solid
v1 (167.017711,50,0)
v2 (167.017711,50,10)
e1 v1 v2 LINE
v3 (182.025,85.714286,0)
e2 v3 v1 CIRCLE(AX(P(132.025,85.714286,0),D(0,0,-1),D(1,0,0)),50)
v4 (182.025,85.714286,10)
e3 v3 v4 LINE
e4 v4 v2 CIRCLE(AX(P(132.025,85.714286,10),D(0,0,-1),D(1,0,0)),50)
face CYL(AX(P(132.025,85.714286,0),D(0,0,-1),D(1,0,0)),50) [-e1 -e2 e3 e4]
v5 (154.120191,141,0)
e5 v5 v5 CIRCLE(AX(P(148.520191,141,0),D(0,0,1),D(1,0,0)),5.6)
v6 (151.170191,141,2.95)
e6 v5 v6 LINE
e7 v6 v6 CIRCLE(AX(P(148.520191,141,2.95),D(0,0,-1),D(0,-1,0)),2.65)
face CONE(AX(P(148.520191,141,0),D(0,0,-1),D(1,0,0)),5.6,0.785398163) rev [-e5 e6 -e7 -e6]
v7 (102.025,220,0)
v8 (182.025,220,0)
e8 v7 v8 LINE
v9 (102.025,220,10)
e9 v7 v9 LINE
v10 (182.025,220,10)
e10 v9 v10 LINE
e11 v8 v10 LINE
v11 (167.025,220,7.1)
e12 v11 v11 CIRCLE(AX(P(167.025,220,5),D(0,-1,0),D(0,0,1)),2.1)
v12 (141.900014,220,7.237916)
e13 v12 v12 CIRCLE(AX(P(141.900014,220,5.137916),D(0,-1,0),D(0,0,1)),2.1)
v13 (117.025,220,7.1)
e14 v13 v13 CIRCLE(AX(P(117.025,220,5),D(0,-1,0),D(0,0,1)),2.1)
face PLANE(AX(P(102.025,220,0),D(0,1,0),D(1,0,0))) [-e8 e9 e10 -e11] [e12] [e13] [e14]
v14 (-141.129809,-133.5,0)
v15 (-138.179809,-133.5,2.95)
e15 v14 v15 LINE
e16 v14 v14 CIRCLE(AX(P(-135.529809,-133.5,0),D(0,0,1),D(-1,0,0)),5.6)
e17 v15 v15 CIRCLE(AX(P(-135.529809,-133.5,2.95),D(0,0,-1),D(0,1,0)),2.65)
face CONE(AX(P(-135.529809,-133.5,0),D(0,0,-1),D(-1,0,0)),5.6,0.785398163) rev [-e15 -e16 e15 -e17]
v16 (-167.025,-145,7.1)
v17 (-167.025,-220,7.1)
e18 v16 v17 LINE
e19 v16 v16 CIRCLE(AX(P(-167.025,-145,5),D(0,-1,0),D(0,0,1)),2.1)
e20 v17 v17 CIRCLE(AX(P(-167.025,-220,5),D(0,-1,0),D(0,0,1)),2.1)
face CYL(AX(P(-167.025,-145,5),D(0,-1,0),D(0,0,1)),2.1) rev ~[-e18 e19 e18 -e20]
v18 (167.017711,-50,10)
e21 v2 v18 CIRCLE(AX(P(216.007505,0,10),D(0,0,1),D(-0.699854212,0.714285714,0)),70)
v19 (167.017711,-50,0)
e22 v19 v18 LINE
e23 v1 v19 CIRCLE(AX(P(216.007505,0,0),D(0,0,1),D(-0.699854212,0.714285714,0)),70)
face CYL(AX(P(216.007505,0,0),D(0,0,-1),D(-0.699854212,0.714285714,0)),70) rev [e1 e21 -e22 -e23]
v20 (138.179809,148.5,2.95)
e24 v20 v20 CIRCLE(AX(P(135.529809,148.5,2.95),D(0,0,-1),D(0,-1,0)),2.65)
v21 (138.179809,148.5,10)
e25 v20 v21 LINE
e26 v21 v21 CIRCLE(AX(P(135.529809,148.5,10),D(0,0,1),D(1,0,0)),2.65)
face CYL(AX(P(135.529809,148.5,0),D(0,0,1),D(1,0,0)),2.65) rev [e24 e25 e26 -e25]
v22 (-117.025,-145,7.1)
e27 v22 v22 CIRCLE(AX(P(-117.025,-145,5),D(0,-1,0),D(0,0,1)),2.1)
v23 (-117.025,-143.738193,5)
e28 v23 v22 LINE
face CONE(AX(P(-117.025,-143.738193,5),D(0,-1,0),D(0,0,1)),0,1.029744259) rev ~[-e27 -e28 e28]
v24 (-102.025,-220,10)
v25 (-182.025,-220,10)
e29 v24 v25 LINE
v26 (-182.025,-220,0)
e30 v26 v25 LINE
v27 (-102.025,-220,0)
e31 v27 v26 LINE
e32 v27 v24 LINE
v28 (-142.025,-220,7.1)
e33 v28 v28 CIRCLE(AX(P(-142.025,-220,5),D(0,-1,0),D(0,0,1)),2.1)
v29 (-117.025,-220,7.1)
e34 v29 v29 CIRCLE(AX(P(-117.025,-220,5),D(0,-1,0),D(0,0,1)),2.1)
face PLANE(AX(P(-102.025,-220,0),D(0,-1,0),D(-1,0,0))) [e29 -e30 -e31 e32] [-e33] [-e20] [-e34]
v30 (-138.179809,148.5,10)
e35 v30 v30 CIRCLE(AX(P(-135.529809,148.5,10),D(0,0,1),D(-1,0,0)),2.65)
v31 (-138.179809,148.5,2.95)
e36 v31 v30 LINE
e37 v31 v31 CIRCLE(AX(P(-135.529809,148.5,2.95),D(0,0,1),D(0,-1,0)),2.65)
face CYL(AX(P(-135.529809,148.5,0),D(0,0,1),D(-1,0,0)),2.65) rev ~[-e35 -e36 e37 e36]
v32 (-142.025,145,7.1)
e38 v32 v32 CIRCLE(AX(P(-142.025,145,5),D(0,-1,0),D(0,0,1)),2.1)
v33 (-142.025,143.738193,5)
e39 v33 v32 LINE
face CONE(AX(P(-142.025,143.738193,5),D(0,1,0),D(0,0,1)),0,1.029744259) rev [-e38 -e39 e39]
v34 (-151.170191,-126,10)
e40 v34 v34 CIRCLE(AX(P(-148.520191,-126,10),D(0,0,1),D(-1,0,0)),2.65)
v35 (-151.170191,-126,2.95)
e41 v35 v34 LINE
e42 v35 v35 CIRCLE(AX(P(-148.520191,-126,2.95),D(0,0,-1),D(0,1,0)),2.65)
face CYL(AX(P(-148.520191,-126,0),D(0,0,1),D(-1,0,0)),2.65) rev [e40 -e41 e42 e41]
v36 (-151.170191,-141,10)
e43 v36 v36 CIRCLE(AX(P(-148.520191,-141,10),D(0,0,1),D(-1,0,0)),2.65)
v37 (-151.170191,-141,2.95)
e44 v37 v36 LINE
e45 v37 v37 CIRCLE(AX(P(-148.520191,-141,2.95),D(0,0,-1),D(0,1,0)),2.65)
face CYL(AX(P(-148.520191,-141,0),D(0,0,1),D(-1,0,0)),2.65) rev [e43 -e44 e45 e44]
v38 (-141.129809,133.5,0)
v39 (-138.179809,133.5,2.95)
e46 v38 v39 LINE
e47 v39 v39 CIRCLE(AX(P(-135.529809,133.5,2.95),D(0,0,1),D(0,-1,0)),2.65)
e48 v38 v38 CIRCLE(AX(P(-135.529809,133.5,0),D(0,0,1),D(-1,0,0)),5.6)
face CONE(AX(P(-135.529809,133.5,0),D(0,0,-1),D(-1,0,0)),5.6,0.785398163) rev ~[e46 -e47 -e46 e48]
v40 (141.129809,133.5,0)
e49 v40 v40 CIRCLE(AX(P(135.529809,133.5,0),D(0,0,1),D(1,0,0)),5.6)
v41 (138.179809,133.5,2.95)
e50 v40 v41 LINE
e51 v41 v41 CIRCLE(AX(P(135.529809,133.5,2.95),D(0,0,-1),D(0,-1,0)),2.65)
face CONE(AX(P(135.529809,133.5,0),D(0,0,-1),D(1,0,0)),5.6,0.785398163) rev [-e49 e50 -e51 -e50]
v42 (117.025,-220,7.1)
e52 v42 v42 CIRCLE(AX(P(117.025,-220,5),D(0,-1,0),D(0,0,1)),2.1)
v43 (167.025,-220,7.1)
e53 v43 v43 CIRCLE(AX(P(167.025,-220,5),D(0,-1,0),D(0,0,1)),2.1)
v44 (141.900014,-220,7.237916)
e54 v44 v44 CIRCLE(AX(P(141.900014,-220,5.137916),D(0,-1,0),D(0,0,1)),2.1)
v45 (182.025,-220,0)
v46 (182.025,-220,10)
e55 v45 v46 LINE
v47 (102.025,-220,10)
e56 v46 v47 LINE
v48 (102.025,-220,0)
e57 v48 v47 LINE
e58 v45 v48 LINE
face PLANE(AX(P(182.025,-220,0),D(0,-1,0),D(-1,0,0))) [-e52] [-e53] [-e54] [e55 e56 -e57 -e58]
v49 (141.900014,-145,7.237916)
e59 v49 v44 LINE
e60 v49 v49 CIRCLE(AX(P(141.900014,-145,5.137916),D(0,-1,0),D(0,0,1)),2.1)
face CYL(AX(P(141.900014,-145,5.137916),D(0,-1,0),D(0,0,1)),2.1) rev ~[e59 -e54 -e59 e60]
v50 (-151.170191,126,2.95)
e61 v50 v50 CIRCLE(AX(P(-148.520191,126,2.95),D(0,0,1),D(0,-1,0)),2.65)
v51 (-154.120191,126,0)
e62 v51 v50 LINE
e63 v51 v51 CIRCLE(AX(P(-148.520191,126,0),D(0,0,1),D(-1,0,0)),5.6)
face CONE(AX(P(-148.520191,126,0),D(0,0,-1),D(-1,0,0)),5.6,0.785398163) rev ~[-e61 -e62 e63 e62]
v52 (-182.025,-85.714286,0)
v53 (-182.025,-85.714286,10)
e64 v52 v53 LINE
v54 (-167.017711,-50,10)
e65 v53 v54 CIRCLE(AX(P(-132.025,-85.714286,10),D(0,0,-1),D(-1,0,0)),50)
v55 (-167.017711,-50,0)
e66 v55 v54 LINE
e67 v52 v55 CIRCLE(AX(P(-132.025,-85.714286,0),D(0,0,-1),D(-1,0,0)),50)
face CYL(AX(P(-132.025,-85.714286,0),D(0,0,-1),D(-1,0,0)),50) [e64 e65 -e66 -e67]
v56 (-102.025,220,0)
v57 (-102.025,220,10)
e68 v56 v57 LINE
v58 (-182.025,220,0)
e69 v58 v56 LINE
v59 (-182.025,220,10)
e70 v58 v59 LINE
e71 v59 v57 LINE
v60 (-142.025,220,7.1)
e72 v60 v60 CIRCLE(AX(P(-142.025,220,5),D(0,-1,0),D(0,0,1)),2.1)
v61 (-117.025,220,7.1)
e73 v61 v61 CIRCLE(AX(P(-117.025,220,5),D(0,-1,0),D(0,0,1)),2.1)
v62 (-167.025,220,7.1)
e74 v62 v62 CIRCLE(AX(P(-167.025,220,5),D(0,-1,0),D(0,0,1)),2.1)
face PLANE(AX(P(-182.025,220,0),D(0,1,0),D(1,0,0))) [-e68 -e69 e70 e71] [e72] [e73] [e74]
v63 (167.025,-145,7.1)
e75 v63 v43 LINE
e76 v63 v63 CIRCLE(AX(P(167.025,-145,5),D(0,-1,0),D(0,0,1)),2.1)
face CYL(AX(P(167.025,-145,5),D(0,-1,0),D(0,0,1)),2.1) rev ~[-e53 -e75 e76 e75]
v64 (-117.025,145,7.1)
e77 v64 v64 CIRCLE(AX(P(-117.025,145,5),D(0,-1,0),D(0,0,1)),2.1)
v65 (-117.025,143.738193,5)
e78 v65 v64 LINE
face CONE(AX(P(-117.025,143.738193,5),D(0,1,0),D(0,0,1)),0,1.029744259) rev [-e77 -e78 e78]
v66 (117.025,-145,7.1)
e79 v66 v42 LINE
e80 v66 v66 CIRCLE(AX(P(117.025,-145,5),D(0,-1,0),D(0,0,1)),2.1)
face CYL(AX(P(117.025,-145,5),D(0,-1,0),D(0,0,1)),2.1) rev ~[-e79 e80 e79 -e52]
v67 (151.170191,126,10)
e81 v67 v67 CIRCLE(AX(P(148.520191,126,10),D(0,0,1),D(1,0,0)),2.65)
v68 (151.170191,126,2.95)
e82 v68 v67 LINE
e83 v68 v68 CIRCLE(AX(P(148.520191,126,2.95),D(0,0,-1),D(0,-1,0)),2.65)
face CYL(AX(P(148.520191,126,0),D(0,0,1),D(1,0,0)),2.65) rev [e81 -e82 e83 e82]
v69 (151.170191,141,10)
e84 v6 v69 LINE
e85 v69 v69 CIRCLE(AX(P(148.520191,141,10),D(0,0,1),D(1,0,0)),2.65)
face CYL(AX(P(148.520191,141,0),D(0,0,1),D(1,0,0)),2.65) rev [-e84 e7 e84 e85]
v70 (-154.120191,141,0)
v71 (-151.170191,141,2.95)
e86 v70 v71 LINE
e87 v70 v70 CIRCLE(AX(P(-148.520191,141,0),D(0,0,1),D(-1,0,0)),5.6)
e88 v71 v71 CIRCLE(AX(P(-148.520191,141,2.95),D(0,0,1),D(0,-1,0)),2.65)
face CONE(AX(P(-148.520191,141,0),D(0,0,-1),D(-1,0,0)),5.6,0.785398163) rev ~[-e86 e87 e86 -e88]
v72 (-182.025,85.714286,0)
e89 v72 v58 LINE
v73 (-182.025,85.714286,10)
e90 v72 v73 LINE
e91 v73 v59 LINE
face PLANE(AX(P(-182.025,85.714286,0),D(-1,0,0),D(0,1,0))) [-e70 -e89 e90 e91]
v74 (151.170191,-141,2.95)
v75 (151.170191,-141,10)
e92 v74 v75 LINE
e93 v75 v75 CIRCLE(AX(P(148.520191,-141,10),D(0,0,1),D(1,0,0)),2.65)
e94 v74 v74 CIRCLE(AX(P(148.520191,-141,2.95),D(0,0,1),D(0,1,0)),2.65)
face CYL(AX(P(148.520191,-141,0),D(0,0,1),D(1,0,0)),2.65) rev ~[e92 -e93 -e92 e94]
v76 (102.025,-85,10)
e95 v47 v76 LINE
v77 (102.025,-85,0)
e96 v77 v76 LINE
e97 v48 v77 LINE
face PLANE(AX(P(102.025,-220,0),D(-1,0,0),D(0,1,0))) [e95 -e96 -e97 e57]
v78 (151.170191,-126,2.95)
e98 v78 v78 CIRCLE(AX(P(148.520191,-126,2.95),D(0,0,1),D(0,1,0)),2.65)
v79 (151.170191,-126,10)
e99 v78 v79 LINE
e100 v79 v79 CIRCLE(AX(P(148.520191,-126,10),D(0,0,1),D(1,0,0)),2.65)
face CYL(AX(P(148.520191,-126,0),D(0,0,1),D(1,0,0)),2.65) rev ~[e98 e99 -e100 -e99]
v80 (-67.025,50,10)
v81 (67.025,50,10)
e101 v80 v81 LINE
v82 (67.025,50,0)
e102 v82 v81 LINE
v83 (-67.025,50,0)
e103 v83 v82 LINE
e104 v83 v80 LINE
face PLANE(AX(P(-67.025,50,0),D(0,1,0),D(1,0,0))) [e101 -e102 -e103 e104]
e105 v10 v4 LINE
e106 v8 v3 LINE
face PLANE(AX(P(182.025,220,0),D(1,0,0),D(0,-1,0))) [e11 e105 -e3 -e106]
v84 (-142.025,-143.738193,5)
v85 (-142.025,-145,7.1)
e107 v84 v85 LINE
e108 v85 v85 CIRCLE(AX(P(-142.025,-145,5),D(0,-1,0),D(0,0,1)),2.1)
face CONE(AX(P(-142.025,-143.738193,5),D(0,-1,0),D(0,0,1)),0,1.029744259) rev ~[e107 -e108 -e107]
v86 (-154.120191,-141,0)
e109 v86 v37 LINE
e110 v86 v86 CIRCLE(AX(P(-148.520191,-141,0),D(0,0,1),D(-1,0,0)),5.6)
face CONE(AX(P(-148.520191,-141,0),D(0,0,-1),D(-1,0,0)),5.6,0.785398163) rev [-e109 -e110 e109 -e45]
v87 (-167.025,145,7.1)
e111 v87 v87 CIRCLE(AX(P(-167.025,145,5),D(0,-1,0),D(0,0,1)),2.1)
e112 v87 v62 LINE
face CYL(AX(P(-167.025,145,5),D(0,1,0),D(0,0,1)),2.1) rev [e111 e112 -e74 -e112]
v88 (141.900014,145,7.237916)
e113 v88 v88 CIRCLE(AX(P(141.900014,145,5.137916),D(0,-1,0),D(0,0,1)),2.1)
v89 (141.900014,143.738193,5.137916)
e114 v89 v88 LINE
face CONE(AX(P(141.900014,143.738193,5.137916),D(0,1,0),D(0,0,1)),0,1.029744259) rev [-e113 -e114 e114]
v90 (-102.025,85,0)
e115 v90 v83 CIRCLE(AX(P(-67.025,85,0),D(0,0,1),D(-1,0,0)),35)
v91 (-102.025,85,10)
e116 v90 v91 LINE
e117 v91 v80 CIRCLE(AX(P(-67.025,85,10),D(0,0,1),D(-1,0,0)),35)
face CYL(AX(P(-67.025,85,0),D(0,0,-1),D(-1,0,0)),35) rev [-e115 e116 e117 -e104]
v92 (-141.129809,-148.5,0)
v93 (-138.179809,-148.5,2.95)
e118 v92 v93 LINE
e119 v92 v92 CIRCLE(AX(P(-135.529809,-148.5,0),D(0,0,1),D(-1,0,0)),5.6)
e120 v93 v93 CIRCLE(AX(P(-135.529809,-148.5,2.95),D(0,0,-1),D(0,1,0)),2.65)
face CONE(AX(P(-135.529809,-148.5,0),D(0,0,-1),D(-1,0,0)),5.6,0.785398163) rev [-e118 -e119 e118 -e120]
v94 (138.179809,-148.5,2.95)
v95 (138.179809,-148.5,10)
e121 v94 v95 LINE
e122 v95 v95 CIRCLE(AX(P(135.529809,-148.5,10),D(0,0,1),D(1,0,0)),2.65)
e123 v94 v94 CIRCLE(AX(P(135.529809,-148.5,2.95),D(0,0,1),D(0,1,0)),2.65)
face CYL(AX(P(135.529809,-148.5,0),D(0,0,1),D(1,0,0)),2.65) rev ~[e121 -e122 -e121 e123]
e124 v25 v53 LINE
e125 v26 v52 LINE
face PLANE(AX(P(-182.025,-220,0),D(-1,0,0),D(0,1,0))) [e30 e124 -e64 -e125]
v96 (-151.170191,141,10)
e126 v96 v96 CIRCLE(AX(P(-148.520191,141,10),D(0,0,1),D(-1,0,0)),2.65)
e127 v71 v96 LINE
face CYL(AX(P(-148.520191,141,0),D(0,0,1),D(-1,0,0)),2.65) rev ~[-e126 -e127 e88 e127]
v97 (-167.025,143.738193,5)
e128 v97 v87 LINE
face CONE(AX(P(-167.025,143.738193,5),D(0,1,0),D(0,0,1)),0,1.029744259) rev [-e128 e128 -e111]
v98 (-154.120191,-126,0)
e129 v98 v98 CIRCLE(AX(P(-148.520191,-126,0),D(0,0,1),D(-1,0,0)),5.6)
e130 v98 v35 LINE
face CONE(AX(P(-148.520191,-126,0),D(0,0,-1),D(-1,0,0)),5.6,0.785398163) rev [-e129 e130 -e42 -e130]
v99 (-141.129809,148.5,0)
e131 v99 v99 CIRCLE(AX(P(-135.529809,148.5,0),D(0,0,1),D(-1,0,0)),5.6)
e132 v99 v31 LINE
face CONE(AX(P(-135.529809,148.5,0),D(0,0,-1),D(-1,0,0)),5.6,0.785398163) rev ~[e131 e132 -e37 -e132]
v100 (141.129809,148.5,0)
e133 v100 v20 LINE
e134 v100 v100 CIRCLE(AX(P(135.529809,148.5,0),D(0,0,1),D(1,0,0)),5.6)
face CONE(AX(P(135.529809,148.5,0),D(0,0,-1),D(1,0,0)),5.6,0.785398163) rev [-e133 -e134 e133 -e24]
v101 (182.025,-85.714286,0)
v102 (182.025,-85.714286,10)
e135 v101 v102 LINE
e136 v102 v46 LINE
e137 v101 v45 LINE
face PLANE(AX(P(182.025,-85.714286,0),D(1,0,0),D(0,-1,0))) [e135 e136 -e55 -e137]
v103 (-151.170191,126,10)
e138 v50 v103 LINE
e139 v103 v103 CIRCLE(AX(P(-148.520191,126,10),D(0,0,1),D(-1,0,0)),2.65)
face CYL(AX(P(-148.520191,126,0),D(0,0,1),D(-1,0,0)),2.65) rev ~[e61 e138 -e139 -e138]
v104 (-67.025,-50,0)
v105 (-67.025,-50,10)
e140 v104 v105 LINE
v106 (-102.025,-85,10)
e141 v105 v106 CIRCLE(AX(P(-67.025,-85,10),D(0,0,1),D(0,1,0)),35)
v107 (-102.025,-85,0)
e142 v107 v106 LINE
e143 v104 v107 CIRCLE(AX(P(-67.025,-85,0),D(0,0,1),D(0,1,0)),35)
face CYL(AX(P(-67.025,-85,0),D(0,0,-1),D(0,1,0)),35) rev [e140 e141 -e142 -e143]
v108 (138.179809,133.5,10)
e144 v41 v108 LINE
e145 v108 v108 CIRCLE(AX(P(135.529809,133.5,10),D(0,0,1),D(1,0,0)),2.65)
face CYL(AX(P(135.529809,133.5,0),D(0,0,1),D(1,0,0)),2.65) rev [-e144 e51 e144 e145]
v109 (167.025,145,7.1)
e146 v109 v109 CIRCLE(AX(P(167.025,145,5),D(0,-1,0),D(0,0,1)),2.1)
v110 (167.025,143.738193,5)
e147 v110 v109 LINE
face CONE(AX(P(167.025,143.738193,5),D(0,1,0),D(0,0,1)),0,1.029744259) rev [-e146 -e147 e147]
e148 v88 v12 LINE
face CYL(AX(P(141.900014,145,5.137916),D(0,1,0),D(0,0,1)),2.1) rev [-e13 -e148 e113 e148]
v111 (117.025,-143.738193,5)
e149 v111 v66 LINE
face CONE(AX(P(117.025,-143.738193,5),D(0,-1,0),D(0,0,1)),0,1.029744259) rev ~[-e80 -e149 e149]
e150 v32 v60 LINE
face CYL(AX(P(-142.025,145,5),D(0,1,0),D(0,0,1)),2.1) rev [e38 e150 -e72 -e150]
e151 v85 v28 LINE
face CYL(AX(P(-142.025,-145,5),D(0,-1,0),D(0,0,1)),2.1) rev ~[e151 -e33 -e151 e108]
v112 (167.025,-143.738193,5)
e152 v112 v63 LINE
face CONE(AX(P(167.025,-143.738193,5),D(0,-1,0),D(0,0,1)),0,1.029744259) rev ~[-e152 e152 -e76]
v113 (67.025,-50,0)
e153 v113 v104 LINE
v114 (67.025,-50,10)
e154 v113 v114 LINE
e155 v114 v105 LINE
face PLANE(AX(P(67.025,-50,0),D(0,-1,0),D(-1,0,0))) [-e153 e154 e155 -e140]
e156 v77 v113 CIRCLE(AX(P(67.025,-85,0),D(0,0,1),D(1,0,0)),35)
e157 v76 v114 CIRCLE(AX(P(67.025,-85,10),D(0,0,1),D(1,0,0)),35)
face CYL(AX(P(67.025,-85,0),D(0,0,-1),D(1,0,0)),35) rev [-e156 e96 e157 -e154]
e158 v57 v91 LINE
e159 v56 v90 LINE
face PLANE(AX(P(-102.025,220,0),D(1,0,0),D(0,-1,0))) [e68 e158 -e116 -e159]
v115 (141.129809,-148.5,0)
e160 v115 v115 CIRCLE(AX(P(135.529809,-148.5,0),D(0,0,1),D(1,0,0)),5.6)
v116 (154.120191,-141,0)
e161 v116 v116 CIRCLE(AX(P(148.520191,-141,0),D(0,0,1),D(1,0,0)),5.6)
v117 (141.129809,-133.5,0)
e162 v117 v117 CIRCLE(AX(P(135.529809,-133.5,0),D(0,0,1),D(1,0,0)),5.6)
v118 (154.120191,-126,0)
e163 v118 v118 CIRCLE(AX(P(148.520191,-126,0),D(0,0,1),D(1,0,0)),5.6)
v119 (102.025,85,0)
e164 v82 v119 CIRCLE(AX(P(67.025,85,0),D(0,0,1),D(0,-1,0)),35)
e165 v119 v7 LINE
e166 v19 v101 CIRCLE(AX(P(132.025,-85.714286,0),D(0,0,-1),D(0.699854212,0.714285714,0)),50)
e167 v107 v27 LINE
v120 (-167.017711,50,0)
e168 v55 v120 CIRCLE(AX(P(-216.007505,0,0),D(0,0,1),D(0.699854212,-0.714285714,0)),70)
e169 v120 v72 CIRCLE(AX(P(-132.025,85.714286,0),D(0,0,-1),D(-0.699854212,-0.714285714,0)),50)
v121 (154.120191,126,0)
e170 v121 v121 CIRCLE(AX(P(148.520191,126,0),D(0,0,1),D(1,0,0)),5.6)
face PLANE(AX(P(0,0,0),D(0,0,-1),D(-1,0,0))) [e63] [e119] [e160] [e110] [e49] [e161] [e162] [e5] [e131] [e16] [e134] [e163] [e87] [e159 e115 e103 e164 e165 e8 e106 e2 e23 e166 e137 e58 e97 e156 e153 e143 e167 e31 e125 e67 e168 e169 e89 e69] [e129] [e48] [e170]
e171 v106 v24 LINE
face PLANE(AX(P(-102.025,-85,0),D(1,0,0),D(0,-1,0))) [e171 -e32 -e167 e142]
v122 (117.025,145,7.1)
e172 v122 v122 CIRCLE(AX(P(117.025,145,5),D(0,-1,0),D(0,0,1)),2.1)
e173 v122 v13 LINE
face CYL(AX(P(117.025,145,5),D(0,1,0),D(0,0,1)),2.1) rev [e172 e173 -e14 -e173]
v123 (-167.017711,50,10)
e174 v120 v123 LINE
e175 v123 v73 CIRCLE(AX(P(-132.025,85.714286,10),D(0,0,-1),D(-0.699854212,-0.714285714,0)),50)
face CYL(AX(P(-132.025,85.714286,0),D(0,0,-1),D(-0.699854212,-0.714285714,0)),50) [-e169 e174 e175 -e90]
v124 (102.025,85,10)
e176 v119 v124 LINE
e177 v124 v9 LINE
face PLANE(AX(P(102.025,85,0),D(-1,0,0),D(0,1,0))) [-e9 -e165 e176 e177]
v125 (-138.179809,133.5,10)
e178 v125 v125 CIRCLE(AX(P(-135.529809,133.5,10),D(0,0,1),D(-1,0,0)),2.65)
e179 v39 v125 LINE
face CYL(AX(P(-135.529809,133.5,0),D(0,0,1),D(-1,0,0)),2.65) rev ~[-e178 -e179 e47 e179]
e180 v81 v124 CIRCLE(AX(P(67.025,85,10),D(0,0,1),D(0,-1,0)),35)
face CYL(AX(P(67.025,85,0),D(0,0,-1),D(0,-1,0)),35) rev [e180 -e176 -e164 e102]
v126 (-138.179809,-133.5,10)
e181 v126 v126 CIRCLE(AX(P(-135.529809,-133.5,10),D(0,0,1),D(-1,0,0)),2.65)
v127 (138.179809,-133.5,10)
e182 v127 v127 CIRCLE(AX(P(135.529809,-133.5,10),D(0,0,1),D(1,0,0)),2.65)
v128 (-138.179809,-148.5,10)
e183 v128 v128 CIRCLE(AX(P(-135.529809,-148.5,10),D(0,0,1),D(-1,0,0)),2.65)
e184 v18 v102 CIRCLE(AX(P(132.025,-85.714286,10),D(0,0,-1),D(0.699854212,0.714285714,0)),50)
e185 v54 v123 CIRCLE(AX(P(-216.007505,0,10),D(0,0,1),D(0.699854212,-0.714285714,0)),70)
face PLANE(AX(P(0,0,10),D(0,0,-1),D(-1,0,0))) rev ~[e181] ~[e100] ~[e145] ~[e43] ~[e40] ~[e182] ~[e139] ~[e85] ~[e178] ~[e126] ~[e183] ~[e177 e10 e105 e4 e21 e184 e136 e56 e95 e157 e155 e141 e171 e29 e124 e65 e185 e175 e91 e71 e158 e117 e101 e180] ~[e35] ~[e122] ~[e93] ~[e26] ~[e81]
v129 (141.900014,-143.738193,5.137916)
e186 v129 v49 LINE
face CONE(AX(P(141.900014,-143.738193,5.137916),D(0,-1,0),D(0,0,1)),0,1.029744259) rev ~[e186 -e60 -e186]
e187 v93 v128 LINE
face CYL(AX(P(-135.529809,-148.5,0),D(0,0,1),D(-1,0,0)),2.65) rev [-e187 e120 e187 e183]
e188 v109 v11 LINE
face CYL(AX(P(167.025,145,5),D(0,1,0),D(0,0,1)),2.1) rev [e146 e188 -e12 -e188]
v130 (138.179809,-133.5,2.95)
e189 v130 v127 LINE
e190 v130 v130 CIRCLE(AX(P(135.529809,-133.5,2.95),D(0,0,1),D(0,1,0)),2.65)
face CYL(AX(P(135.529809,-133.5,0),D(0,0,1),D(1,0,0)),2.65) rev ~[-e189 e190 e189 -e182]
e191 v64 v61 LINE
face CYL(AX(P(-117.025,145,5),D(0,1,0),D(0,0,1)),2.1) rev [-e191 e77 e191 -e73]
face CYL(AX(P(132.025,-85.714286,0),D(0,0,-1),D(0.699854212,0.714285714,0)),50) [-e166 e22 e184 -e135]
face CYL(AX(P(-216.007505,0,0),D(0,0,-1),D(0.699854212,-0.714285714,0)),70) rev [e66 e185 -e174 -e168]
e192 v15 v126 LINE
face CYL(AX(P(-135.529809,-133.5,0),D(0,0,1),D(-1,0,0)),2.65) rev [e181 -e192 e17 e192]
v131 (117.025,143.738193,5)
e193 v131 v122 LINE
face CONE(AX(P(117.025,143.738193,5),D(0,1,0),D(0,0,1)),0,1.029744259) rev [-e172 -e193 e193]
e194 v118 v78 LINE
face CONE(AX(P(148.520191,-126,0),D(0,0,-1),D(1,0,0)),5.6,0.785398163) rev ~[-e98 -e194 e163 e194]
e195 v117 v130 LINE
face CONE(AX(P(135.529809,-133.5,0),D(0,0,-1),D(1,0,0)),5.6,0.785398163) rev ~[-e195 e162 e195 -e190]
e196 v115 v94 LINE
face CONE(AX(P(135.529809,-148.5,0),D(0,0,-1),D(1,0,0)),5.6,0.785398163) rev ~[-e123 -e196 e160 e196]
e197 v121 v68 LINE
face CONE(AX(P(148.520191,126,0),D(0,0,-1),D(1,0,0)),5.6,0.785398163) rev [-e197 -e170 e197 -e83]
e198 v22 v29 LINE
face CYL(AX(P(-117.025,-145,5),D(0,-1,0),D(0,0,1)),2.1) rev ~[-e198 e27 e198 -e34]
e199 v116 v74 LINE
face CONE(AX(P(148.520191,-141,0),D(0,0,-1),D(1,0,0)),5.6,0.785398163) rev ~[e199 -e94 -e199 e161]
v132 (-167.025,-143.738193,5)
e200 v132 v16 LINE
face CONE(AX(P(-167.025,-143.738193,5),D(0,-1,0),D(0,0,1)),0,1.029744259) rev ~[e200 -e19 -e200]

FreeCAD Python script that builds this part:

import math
import FreeCAD as App
import Part
import Sketcher
from FreeCAD import Vector
Q = App.Units.Quantity

doc = App.newDocument("Part")
body = doc.addObject("PartDesign::Body", "Body")

sketch1 = body.newObject("Sketcher::SketchObject", "Sketch")
sketch1.AttachmentSupport = (doc.getObject("XY_Plane"), [""])
sketch1.MapMode = "FlatFace"
sketch1.addGeometry([
    Part.LineSegment(Vector(67, 50, 0), Vector(-67, 50, 0)),
    Part.ArcOfCircle(Part.Circle(Vector(-67, 85, 0), Vector(0, 0, 1), 35), math.radians(180), math.radians(270)),
    Part.LineSegment(Vector(-102, 85, 0), Vector(-102, 220, 0)),
    Part.LineSegment(Vector(-102, 220, 0), Vector(-182, 220, 0)),
    Part.LineSegment(Vector(-182, 220, 0), Vector(-182, 86, 0)),
    Part.ArcOfCircle(Part.Circle(Vector(-132, 86, 0), Vector(0, 0, 1), 50), math.radians(-180), math.radians(-134)),
    Part.ArcOfCircle(Part.Circle(Vector(-216, 0, 0), Vector(0, 0, 1), 70), math.radians(-46), math.radians(46)),
    Part.ArcOfCircle(Part.Circle(Vector(-132, -86, 0), Vector(0, 0, 1), 50), math.radians(134), math.radians(180)),
    Part.LineSegment(Vector(-182, -86, 0), Vector(-182, -220, 0)),
    Part.LineSegment(Vector(-182, -220, 0), Vector(-102, -220, 0)),
    Part.LineSegment(Vector(-102, -220, 0), Vector(-102, -85, 0)),
    Part.ArcOfCircle(Part.Circle(Vector(-67, -85, 0), Vector(0, 0, 1), 35), math.radians(90), math.radians(180)),
    Part.LineSegment(Vector(-67, -50, 0), Vector(67, -50, 0)),
    Part.ArcOfCircle(Part.Circle(Vector(67, -85, 0), Vector(0, 0, 1), 35), math.radians(0), math.radians(90)),
    Part.LineSegment(Vector(102, -85, 0), Vector(102, -220, 0)),
    Part.LineSegment(Vector(102, -220, 0), Vector(182, -220, 0)),
    Part.LineSegment(Vector(182, -220, 0), Vector(182, -86, 0)),
    Part.ArcOfCircle(Part.Circle(Vector(132, -86, 0), Vector(0, 0, 1), 50), math.radians(0), math.radians(46)),
    Part.ArcOfCircle(Part.Circle(Vector(216, 0, 0), Vector(0, 0, 1), 70), math.radians(134), math.radians(226)),
    Part.ArcOfCircle(Part.Circle(Vector(132, 86, 0), Vector(0, 0, 1), 50), math.radians(-46), math.radians(0)),
    Part.LineSegment(Vector(182, 86, 0), Vector(182, 220, 0)),
    Part.LineSegment(Vector(182, 220, 0), Vector(102, 220, 0)),
    Part.LineSegment(Vector(102, 220, 0), Vector(102, 85, 0)),
    Part.ArcOfCircle(Part.Circle(Vector(67, 85, 0), Vector(0, 0, 1), 35), math.radians(-90), math.radians(0)),
], False)
sketch1.addConstraint([
    Sketcher.Constraint("Tangent", 0, 2, 1, 2),
    Sketcher.Constraint("Tangent", 1, 1, 2, 1),
    Sketcher.Constraint("Coincident", 2, 2, 3, 1),
    Sketcher.Constraint("Coincident", 3, 2, 4, 1),
    Sketcher.Constraint("Tangent", 4, 2, 5, 1),
    Sketcher.Constraint("Tangent", 5, 2, 6, 2),
    Sketcher.Constraint("Tangent", 6, 1, 7, 1),
    Sketcher.Constraint("Tangent", 7, 2, 8, 1),
    Sketcher.Constraint("Coincident", 8, 2, 9, 1),
    Sketcher.Constraint("Coincident", 9, 2, 10, 1),
    Sketcher.Constraint("Tangent", 10, 2, 11, 2),
    Sketcher.Constraint("Tangent", 11, 1, 12, 1),
    Sketcher.Constraint("Tangent", 12, 2, 13, 2),
    Sketcher.Constraint("Tangent", 13, 1, 14, 1),
    Sketcher.Constraint("Coincident", 14, 2, 15, 1),
    Sketcher.Constraint("Coincident", 15, 2, 16, 1),
    Sketcher.Constraint("Tangent", 16, 2, 17, 1),
    Sketcher.Constraint("Tangent", 17, 2, 18, 2),
    Sketcher.Constraint("Tangent", 18, 1, 19, 1),
    Sketcher.Constraint("Tangent", 19, 2, 20, 1),
    Sketcher.Constraint("Coincident", 20, 2, 21, 1),
    Sketcher.Constraint("Coincident", 21, 2, 22, 1),
    Sketcher.Constraint("Tangent", 22, 2, 23, 2),
    Sketcher.Constraint("Tangent", 23, 1, 0, 1),
    Sketcher.Constraint("Horizontal", 0),
    Sketcher.Constraint("Vertical", 2),
    Sketcher.Constraint("Horizontal", 3),
    Sketcher.Constraint("Vertical", 4),
    Sketcher.Constraint("Vertical", 8),
    Sketcher.Constraint("Horizontal", 9),
    Sketcher.Constraint("Vertical", 10),
    Sketcher.Constraint("Horizontal", 12),
    Sketcher.Constraint("Vertical", 14),
    Sketcher.Constraint("Horizontal", 15),
    Sketcher.Constraint("Vertical", 16),
    Sketcher.Constraint("Vertical", 20),
    Sketcher.Constraint("Horizontal", 21),
    Sketcher.Constraint("Vertical", 22),
    Sketcher.Constraint("Equal", 5, 7),
    Sketcher.Constraint("Equal", 1, 11),
    Sketcher.Constraint("Equal", 11, 13),
    Sketcher.Constraint("Equal", 7, 17),
    Sketcher.Constraint("Equal", 6, 18),
    Sketcher.Constraint("Equal", 17, 19),
    Sketcher.Constraint("Equal", 13, 23),
    Sketcher.Constraint("Symmetric", 1, 3, 13, 3, -1, 1),
    Sketcher.Constraint("Symmetric", 5, 3, 17, 3, -1, 1),
    Sketcher.Constraint("Symmetric", 7, 3, 19, 3, -1, 1),
    Sketcher.Constraint("Symmetric", 9, 2, 21, 2, -1, 1),
    Sketcher.Constraint("Symmetric", 7, 3, 17, 3, -2),
    Sketcher.Constraint("Symmetric", 9, 2, 14, 2, -2),
    Sketcher.Constraint("Horizontal", 0, 2, 5, 2),
    Sketcher.Constraint("Horizontal", 3, 2, 20, 2),
    Sketcher.Constraint("Radius", 1, Q("35 mm")),
    Sketcher.Constraint("Radius", 5, Q("50 mm")),
    Sketcher.Constraint("Radius", 6, Q("70 mm")),
    Sketcher.Constraint("DistanceX", 3, 2, 3, 1, Q("80 mm")),
    Sketcher.Constraint("DistanceY", 2, 1, 2, 2, Q("135 mm")),
    Sketcher.Constraint("DistanceY", -1, 1, 1, 3, Q("85 mm")),
    Sketcher.Constraint("DistanceX", 0, 2, 0, 1, Q("134.05 mm")),
])
pad1 = body.newObject("PartDesign::Pad", "Pad")
pad1.Profile = sketch1
pad1.Length = 10

sketch2 = body.newObject("Sketcher::SketchObject", "Sketch001")
sketch2.AttachmentSupport = (doc.getObject("YZ_Plane"), [""])
sketch2.MapMode = "FlatFace"
sketch2.AttachmentOffset = App.Placement(Vector(0, 0, -167.025), App.Rotation())
sketch2.addGeometry([
    Part.LineSegment(Vector(143.7, 5, 0), Vector(220, 5, 0)),
    Part.LineSegment(Vector(220, 5, 0), Vector(220, 7.1, 0)),
    Part.LineSegment(Vector(220, 7.1, 0), Vector(145, 7.1, 0)),
    Part.LineSegment(Vector(145, 7.1, 0), Vector(143.7, 5, 0)),
], False)
sketch2.addGeometry(Part.LineSegment(Vector(220, 5, 0), Vector(143.7, 5, 0)), True)
sketch2.addConstraint([
    Sketcher.Constraint("Coincident", 0, 2, 1, 1),
    Sketcher.Constraint("Coincident", 1, 2, 2, 1),
    Sketcher.Constraint("Coincident", 2, 2, 3, 1),
    Sketcher.Constraint("Coincident", 3, 2, 0, 1),
    Sketcher.Constraint("Horizontal", 0),
    Sketcher.Constraint("Vertical", 1),
    Sketcher.Constraint("Horizontal", 2),
    Sketcher.Constraint("Horizontal", 4),
    Sketcher.Constraint("Coincident", 4, 1, 0, 2),
    Sketcher.Constraint("Equal", 0, 4),
    Sketcher.Constraint("DistanceX", 2, 2, 2, 1, Q("75 mm")),
    Sketcher.Constraint("Angle", 3, Q("-121 deg")),
    Sketcher.Constraint("DistanceY", 1, 1, 1, 2, Q("2.1 mm")),
    Sketcher.Constraint("DistanceX", -1, 1, 0, 2, Q("220 mm")),
    Sketcher.Constraint("DistanceY", -1, 1, 0, 2, Q("5 mm")),
])
groove = body.newObject("PartDesign::Groove", "Groove")
groove.Profile = sketch2
groove.ReferenceAxis = (sketch2, ["Axis0"])
groove.Angle = 360
doc.recompute()

linearpattern = body.newObject("PartDesign::LinearPattern", "LinearPattern")
linearpattern.Originals = [groove]
linearpattern.Direction = (doc.getObject("X_Axis"), [""])
linearpattern.Mode = "offset"
linearpattern.Offset = 50
linearpattern.Occurrences = 2
body.Tip = linearpattern
doc.recompute()

datumline = body.newObject("PartDesign::Line", "DatumLine")
datumline.Placement = App.Placement(Vector(0, 0, 0), App.Rotation(Vector(0, 0, 1), Vector(-0.910543736, 0, -0.413412754)))
linearpattern2 = body.newObject("PartDesign::LinearPattern", "LinearPattern001")
linearpattern2.Originals = [groove]
linearpattern2.Direction = (datumline, [""])
linearpattern2.Mode = "offset"
linearpattern2.Offset = 114.274917
linearpattern2.Occurrences = 2
body.Tip = linearpattern2
doc.recompute()

linearpattern3 = body.newObject("PartDesign::LinearPattern", "LinearPattern002")
linearpattern3.Originals = [groove]
linearpattern3.Direction = (doc.getObject("X_Axis"), [""])
linearpattern3.Mode = "offset"
linearpattern3.Offset = 25
linearpattern3.Occurrences = 2
body.Tip = linearpattern3

sketch3 = body.newObject("Sketcher::SketchObject", "Sketch002")
sketch3.AttachmentSupport = (doc.getObject("YZ_Plane"), [""])
sketch3.MapMode = "FlatFace"
sketch3.AttachmentOffset = App.Placement(Vector(0, 0, 117.025), App.Rotation())
sketch3.addGeometry([
    Part.LineSegment(Vector(143.7, 5, 0), Vector(220, 5, 0)),
    Part.LineSegment(Vector(220, 5, 0), Vector(220, 7.1, 0)),
    Part.LineSegment(Vector(220, 7.1, 0), Vector(145, 7.1, 0)),
    Part.LineSegment(Vector(145, 7.1, 0), Vector(143.7, 5, 0)),
], False)
sketch3.addGeometry(Part.LineSegment(Vector(220, 5, 0), Vector(143.7, 5, 0)), True)
sketch3.addConstraint([
    Sketcher.Constraint("Coincident", 0, 2, 1, 1),
    Sketcher.Constraint("Coincident", 1, 2, 2, 1),
    Sketcher.Constraint("Coincident", 2, 2, 3, 1),
    Sketcher.Constraint("Coincident", 3, 2, 0, 1),
    Sketcher.Constraint("Horizontal", 0),
    Sketcher.Constraint("Vertical", 1),
    Sketcher.Constraint("Horizontal", 2),
    Sketcher.Constraint("Horizontal", 4),
    Sketcher.Constraint("Coincident", 4, 1, 0, 2),
    Sketcher.Constraint("Equal", 0, 4),
    Sketcher.Constraint("DistanceX", 2, 2, 2, 1, Q("75 mm")),
    Sketcher.Constraint("Angle", 3, Q("-121 deg")),
    Sketcher.Constraint("DistanceY", 1, 1, 1, 2, Q("2.1 mm")),
    Sketcher.Constraint("DistanceX", -1, 1, 0, 2, Q("220 mm")),
    Sketcher.Constraint("DistanceY", -1, 1, 0, 2, Q("5 mm")),
])
groove2 = body.newObject("PartDesign::Groove", "Groove001")
groove2.Profile = sketch3
groove2.ReferenceAxis = (sketch3, ["Axis0"])
groove2.Angle = 360
doc.recompute()

linearpattern4 = body.newObject("PartDesign::LinearPattern", "LinearPattern003")
linearpattern4.Originals = [groove2]
linearpattern4.Direction = (doc.getObject("X_Axis"), [""])
linearpattern4.Mode = "offset"
linearpattern4.Offset = 50
linearpattern4.Occurrences = 2
body.Tip = linearpattern4
doc.recompute()

datumline2 = body.newObject("PartDesign::Line", "DatumLine001")
datumline2.Placement = App.Placement(Vector(0, 0, 0), App.Rotation(Vector(0, 0, 1), Vector(0.99998463, 0, 0.005544287)))
linearpattern5 = body.newObject("PartDesign::LinearPattern", "LinearPattern004")
linearpattern5.Originals = [groove2]
linearpattern5.Direction = (datumline2, [""])
linearpattern5.Mode = "offset"
linearpattern5.Offset = 24.875396
linearpattern5.Occurrences = 2
body.Tip = linearpattern5
doc.recompute()

mirrored = body.newObject("PartDesign::Mirrored", "Mirrored")
mirrored.Originals = [groove, groove2]
mirrored.MirrorPlane = (doc.getObject("XZ_Plane"), [""])
body.Tip = mirrored

sketch4 = body.newObject("Sketcher::SketchObject", "Sketch003")
sketch4.AttachmentSupport = (doc.getObject("YZ_Plane"), [""])
sketch4.MapMode = "FlatFace"
sketch4.AttachmentOffset = App.Placement(Vector(0, 0, -117.025), App.Rotation())
sketch4.addGeometry([
    Part.LineSegment(Vector(-220, 5, 0), Vector(-143.7, 5, 0)),
    Part.LineSegment(Vector(-143.7, 5, 0), Vector(-145, 7.1, 0)),
    Part.LineSegment(Vector(-145, 7.1, 0), Vector(-220, 7.1, 0)),
    Part.LineSegment(Vector(-220, 7.1, 0), Vector(-220, 5, 0)),
], False)
sketch4.addGeometry(Part.LineSegment(Vector(-143.7, 5, 0), Vector(-220, 5, 0)), True)
sketch4.addConstraint([
    Sketcher.Constraint("Coincident", 0, 2, 1, 1),
    Sketcher.Constraint("Coincident", 1, 2, 2, 1),
    Sketcher.Constraint("Coincident", 2, 2, 3, 1),
    Sketcher.Constraint("Coincident", 3, 2, 0, 1),
    Sketcher.Constraint("Horizontal", 0),
    Sketcher.Constraint("Horizontal", 2),
    Sketcher.Constraint("Vertical", 3),
    Sketcher.Constraint("Horizontal", 4),
    Sketcher.Constraint("Coincident", 4, 1, 0, 2),
    Sketcher.Constraint("Vertical", 2, 2, 4, 2),
    Sketcher.Constraint("DistanceX", 2, 2, 2, 1, Q("75 mm")),
    Sketcher.Constraint("Angle", 1, Q("121 deg")),
    Sketcher.Constraint("DistanceY", 3, 2, 3, 1, Q("2.1 mm")),
    Sketcher.Constraint("DistanceY", -1, 1, 0, 2, Q("5 mm")),
    Sketcher.Constraint("DistanceX", 1, 2, -1, 1, Q("145 mm")),
])
groove3 = body.newObject("PartDesign::Groove", "Groove002")
groove3.Profile = sketch4
groove3.ReferenceAxis = (sketch4, ["Axis0"])
groove3.Angle = 360

sketch5 = body.newObject("Sketcher::SketchObject", "Sketch004")
sketch5.AttachmentSupport = (doc.getObject("YZ_Plane"), [""])
sketch5.MapMode = "FlatFace"
sketch5.AttachmentOffset = App.Placement(Vector(0, 0, -271.07731), App.Rotation())
sketch5.addGeometry([
    Part.LineSegment(Vector(-220, -42.2, 0), Vector(-143.7, -42.2, 0)),
    Part.LineSegment(Vector(-143.7, -42.2, 0), Vector(-145, -40.1, 0)),
    Part.LineSegment(Vector(-145, -40.1, 0), Vector(-220, -40.1, 0)),
    Part.LineSegment(Vector(-220, -40.1, 0), Vector(-220, -42.2, 0)),
], False)
sketch5.addGeometry(Part.LineSegment(Vector(-143.7, -42.2, 0), Vector(-220, -42.2, 0)), True)
sketch5.addConstraint([
    Sketcher.Constraint("Coincident", 0, 2, 1, 1),
    Sketcher.Constraint("Coincident", 1, 2, 2, 1),
    Sketcher.Constraint("Coincident", 2, 2, 3, 1),
    Sketcher.Constraint("Coincident", 3, 2, 0, 1),
    Sketcher.Constraint("Horizontal", 0),
    Sketcher.Constraint("Horizontal", 2),
    Sketcher.Constraint("Vertical", 3),
    Sketcher.Constraint("Horizontal", 4),
    Sketcher.Constraint("Coincident", 4, 1, 0, 2),
    Sketcher.Constraint("Vertical", 2, 2, 4, 2),
    Sketcher.Constraint("DistanceX", 2, 2, 2, 1, Q("75 mm")),
    Sketcher.Constraint("Angle", 1, Q("121 deg")),
    Sketcher.Constraint("DistanceY", 3, 2, 3, 1, Q("2.1 mm")),
    Sketcher.Constraint("DistanceX", 1, 2, -1, 1, Q("145 mm")),
    Sketcher.Constraint("DistanceY", 0, 2, -1, 1, Q("42.242708 mm")),
])
groove4 = body.newObject("PartDesign::Groove", "Groove003")
groove4.Profile = sketch5
groove4.ReferenceAxis = (sketch5, ["Axis0"])
groove4.Angle = 360

sketch6 = body.newObject("Sketcher::SketchObject", "Sketch005")
sketch6.AttachmentSupport = (doc.getObject("YZ_Plane"), [""])
sketch6.MapMode = "FlatFace"
sketch6.AttachmentOffset = App.Placement(Vector(0, 0, -142.025), App.Rotation())
sketch6.addGeometry([
    Part.LineSegment(Vector(-220, 5, 0), Vector(-143.7, 5, 0)),
    Part.LineSegment(Vector(-143.7, 5, 0), Vector(-145, 7.1, 0)),
    Part.LineSegment(Vector(-145, 7.1, 0), Vector(-220, 7.1, 0)),
    Part.LineSegment(Vector(-220, 7.1, 0), Vector(-220, 5, 0)),
], False)
sketch6.addGeometry(Part.LineSegment(Vector(-143.7, 5, 0), Vector(-220, 5, 0)), True)
sketch6.addConstraint([
    Sketcher.Constraint("Coincident", 0, 2, 1, 1),
    Sketcher.Constraint("Coincident", 1, 2, 2, 1),
    Sketcher.Constraint("Coincident", 2, 2, 3, 1),
    Sketcher.Constraint("Coincident", 3, 2, 0, 1),
    Sketcher.Constraint("Horizontal", 0),
    Sketcher.Constraint("Horizontal", 2),
    Sketcher.Constraint("Vertical", 3),
    Sketcher.Constraint("Horizontal", 4),
    Sketcher.Constraint("Coincident", 4, 1, 0, 2),
    Sketcher.Constraint("Vertical", 2, 2, 4, 2),
    Sketcher.Constraint("DistanceX", 2, 2, 2, 1, Q("75 mm")),
    Sketcher.Constraint("Angle", 1, Q("121 deg")),
    Sketcher.Constraint("DistanceY", 3, 2, 3, 1, Q("2.1 mm")),
    Sketcher.Constraint("DistanceY", -1, 1, 0, 2, Q("5 mm")),
    Sketcher.Constraint("DistanceX", 1, 2, -1, 1, Q("145 mm")),
])
groove5 = body.newObject("PartDesign::Groove", "Groove004")
groove5.Profile = sketch6
groove5.ReferenceAxis = (sketch6, ["Axis0"])
groove5.Angle = 360

sketch7 = body.newObject("Sketcher::SketchObject", "Sketch006")
sketch7.AttachmentSupport = (doc.getObject("YZ_Plane"), [""])
sketch7.MapMode = "FlatFace"
sketch7.AttachmentOffset = App.Placement(Vector(0, 0, 167.025), App.Rotation())
sketch7.addGeometry([
    Part.LineSegment(Vector(-220, 5, 0), Vector(-143.7, 5, 0)),
    Part.LineSegment(Vector(-143.7, 5, 0), Vector(-145, 7.1, 0)),
    Part.LineSegment(Vector(-145, 7.1, 0), Vector(-220, 7.1, 0)),
    Part.LineSegment(Vector(-220, 7.1, 0), Vector(-220, 5, 0)),
], False)
sketch7.addGeometry(Part.LineSegment(Vector(-143.7, 5, 0), Vector(-220, 5, 0)), True)
sketch7.addConstraint([
    Sketcher.Constraint("Coincident", 0, 2, 1, 1),
    Sketcher.Constraint("Coincident", 1, 2, 2, 1),
    Sketcher.Constraint("Coincident", 2, 2, 3, 1),
    Sketcher.Constraint("Coincident", 3, 2, 0, 1),
    Sketcher.Constraint("Horizontal", 0),
    Sketcher.Constraint("Horizontal", 2),
    Sketcher.Constraint("Vertical", 3),
    Sketcher.Constraint("Horizontal", 4),
    Sketcher.Constraint("Coincident", 4, 1, 0, 2),
    Sketcher.Constraint("Vertical", 2, 2, 4, 2),
    Sketcher.Constraint("DistanceX", 2, 2, 2, 1, Q("75 mm")),
    Sketcher.Constraint("Angle", 1, Q("121 deg")),
    Sketcher.Constraint("DistanceY", 3, 2, 3, 1, Q("2.1 mm")),
    Sketcher.Constraint("DistanceY", -1, 1, 0, 2, Q("5 mm")),
    Sketcher.Constraint("DistanceX", 1, 2, -1, 1, Q("145 mm")),
])
groove6 = body.newObject("PartDesign::Groove", "Groove005")
groove6.Profile = sketch7
groove6.ReferenceAxis = (sketch7, ["Axis0"])
groove6.Angle = 360

sketch8 = body.newObject("Sketcher::SketchObject", "Sketch007")
sketch8.AttachmentSupport = (doc.getObject("YZ_Plane"), [""])
sketch8.MapMode = "FlatFace"
sketch8.AttachmentOffset = App.Placement(Vector(0, 0, 141.900014), App.Rotation())
sketch8.addGeometry([
    Part.LineSegment(Vector(-220, 5.1, 0), Vector(-143.7, 5.1, 0)),
    Part.LineSegment(Vector(-143.7, 5.1, 0), Vector(-145, 7.2, 0)),
    Part.LineSegment(Vector(-145, 7.2, 0), Vector(-220, 7.2, 0)),
    Part.LineSegment(Vector(-220, 7.2, 0), Vector(-220, 5.1, 0)),
], False)
sketch8.addGeometry(Part.LineSegment(Vector(-143.7, 5.1, 0), Vector(-220, 5.1, 0)), True)
sketch8.addConstraint([
    Sketcher.Constraint("Coincident", 0, 2, 1, 1),
    Sketcher.Constraint("Coincident", 1, 2, 2, 1),
    Sketcher.Constraint("Coincident", 2, 2, 3, 1),
    Sketcher.Constraint("Coincident", 3, 2, 0, 1),
    Sketcher.Constraint("Horizontal", 0),
    Sketcher.Constraint("Horizontal", 2),
    Sketcher.Constraint("Vertical", 3),
    Sketcher.Constraint("Horizontal", 4),
    Sketcher.Constraint("Coincident", 4, 1, 0, 2),
    Sketcher.Constraint("Vertical", 2, 2, 4, 2),
    Sketcher.Constraint("DistanceX", 2, 2, 2, 1, Q("75 mm")),
    Sketcher.Constraint("Angle", 1, Q("121 deg")),
    Sketcher.Constraint("DistanceY", 3, 2, 3, 1, Q("2.1 mm")),
    Sketcher.Constraint("DistanceX", 1, 2, -1, 1, Q("145 mm")),
    Sketcher.Constraint("DistanceY", -1, 1, 0, 2, Q("5.137916 mm")),
])
groove7 = body.newObject("PartDesign::Groove", "Groove006")
groove7.Profile = sketch8
groove7.ReferenceAxis = (sketch8, ["Axis0"])
groove7.Angle = 360

sketch9 = body.newObject("Sketcher::SketchObject", "Sketch008")
sketch9.AttachmentSupport = (doc.getObject("XY_Plane"), [""])
sketch9.MapMode = "FlatFace"
sketch9.addGeometry([
    Part.Circle(Vector(148.5, -141, 0), Vector(0, 0, 1), 2.6),
    Part.Circle(Vector(135.5, -133.5, 0), Vector(0, 0, 1), 2.6),
    Part.Circle(Vector(135.5, -148.5, 0), Vector(0, 0, 1), 2.6),
    Part.Circle(Vector(148.5, -126, 0), Vector(0, 0, 1), 2.6),
], False)
sketch9.addConstraint([
    Sketcher.Constraint("Equal", 0, 1),
    Sketcher.Constraint("Equal", 1, 2),
    Sketcher.Constraint("Equal", 2, 3),
    Sketcher.Constraint("Vertical", 1, 3, 2, 3),
    Sketcher.Constraint("Vertical", 0, 3, 3, 3),
    Sketcher.Constraint("Diameter", 0, Q("5.3 mm")),
    Sketcher.Constraint("DistanceY", 0, 3, -1, 1, Q("141 mm")),
    Sketcher.Constraint("DistanceY", 3, 3, -1, 1, Q("126 mm")),
    Sketcher.Constraint("DistanceY", 2, 3, 1, 3, Q("15 mm")),
    Sketcher.Constraint("DistanceY", 1, 3, -1, 1, Q("133.5 mm")),
    Sketcher.Constraint("DistanceX", -1, 1, 0, 3, Q("148.520191 mm")),
    Sketcher.Constraint("DistanceX", -1, 1, 1, 3, Q("135.529809 mm")),
])
doc.recompute()
hole = body.newObject("PartDesign::Hole", "Hole")
hole.Profile = sketch9
hole.ThreadType = "None"
hole.Diameter = 5.3
hole.DepthType = "ThroughAll"
hole.HoleCutType = "Countersink"
hole.HoleCutDiameter = 11.2
hole.HoleCutCountersinkAngle = 90
hole.Reversed = True
doc.recompute()

mirrored2 = body.newObject("PartDesign::Mirrored", "Mirrored001")
mirrored2.Originals = [hole]
mirrored2.MirrorPlane = (doc.getObject("XZ_Plane"), [""])
body.Tip = mirrored2
doc.recompute()

mirrored3 = body.newObject("PartDesign::Mirrored", "Mirrored002")
mirrored3.Originals = [hole]
mirrored3.MirrorPlane = (doc.getObject("YZ_Plane"), [""])
body.Tip = mirrored3

sketch10 = body.newObject("Sketcher::SketchObject", "Sketch009")
sketch10.AttachmentSupport = (doc.getObject("XY_Plane"), [""])
sketch10.MapMode = "FlatFace"
sketch10.addGeometry([
    Part.Circle(Vector(-148.5, 141, 0), Vector(0, 0, 1), 2.6),
    Part.Circle(Vector(-135.5, 133.5, 0), Vector(0, 0, 1), 2.6),
    Part.Circle(Vector(-135.5, 148.5, 0), Vector(0, 0, 1), 2.6),
    Part.Circle(Vector(-148.5, 126, 0), Vector(0, 0, 1), 2.6),
], False)
sketch10.addConstraint([
    Sketcher.Constraint("Equal", 0, 1),
    Sketcher.Constraint("Equal", 1, 2),
    Sketcher.Constraint("Equal", 2, 3),
    Sketcher.Constraint("Vertical", 1, 3, 2, 3),
    Sketcher.Constraint("Vertical", 0, 3, 3, 3),
    Sketcher.Constraint("Diameter", 0, Q("5.3 mm")),
    Sketcher.Constraint("DistanceY", -1, 1, 0, 3, Q("141 mm")),
    Sketcher.Constraint("DistanceY", -1, 1, 3, 3, Q("126 mm")),
    Sketcher.Constraint("DistanceY", 1, 3, 2, 3, Q("15 mm")),
    Sketcher.Constraint("DistanceY", -1, 1, 1, 3, Q("133.5 mm")),
    Sketcher.Constraint("DistanceX", 0, 3, -1, 1, Q("148.520191 mm")),
    Sketcher.Constraint("DistanceX", 1, 3, -1, 1, Q("135.529809 mm")),
])
doc.recompute()
hole2 = body.newObject("PartDesign::Hole", "Hole001")
hole2.Profile = sketch10
hole2.ThreadType = "None"
hole2.Diameter = 5.3
hole2.DepthType = "ThroughAll"
hole2.HoleCutType = "Countersink"
hole2.HoleCutDiameter = 11.2
hole2.HoleCutCountersinkAngle = 90
hole2.Reversed = True

doc.recompute()
